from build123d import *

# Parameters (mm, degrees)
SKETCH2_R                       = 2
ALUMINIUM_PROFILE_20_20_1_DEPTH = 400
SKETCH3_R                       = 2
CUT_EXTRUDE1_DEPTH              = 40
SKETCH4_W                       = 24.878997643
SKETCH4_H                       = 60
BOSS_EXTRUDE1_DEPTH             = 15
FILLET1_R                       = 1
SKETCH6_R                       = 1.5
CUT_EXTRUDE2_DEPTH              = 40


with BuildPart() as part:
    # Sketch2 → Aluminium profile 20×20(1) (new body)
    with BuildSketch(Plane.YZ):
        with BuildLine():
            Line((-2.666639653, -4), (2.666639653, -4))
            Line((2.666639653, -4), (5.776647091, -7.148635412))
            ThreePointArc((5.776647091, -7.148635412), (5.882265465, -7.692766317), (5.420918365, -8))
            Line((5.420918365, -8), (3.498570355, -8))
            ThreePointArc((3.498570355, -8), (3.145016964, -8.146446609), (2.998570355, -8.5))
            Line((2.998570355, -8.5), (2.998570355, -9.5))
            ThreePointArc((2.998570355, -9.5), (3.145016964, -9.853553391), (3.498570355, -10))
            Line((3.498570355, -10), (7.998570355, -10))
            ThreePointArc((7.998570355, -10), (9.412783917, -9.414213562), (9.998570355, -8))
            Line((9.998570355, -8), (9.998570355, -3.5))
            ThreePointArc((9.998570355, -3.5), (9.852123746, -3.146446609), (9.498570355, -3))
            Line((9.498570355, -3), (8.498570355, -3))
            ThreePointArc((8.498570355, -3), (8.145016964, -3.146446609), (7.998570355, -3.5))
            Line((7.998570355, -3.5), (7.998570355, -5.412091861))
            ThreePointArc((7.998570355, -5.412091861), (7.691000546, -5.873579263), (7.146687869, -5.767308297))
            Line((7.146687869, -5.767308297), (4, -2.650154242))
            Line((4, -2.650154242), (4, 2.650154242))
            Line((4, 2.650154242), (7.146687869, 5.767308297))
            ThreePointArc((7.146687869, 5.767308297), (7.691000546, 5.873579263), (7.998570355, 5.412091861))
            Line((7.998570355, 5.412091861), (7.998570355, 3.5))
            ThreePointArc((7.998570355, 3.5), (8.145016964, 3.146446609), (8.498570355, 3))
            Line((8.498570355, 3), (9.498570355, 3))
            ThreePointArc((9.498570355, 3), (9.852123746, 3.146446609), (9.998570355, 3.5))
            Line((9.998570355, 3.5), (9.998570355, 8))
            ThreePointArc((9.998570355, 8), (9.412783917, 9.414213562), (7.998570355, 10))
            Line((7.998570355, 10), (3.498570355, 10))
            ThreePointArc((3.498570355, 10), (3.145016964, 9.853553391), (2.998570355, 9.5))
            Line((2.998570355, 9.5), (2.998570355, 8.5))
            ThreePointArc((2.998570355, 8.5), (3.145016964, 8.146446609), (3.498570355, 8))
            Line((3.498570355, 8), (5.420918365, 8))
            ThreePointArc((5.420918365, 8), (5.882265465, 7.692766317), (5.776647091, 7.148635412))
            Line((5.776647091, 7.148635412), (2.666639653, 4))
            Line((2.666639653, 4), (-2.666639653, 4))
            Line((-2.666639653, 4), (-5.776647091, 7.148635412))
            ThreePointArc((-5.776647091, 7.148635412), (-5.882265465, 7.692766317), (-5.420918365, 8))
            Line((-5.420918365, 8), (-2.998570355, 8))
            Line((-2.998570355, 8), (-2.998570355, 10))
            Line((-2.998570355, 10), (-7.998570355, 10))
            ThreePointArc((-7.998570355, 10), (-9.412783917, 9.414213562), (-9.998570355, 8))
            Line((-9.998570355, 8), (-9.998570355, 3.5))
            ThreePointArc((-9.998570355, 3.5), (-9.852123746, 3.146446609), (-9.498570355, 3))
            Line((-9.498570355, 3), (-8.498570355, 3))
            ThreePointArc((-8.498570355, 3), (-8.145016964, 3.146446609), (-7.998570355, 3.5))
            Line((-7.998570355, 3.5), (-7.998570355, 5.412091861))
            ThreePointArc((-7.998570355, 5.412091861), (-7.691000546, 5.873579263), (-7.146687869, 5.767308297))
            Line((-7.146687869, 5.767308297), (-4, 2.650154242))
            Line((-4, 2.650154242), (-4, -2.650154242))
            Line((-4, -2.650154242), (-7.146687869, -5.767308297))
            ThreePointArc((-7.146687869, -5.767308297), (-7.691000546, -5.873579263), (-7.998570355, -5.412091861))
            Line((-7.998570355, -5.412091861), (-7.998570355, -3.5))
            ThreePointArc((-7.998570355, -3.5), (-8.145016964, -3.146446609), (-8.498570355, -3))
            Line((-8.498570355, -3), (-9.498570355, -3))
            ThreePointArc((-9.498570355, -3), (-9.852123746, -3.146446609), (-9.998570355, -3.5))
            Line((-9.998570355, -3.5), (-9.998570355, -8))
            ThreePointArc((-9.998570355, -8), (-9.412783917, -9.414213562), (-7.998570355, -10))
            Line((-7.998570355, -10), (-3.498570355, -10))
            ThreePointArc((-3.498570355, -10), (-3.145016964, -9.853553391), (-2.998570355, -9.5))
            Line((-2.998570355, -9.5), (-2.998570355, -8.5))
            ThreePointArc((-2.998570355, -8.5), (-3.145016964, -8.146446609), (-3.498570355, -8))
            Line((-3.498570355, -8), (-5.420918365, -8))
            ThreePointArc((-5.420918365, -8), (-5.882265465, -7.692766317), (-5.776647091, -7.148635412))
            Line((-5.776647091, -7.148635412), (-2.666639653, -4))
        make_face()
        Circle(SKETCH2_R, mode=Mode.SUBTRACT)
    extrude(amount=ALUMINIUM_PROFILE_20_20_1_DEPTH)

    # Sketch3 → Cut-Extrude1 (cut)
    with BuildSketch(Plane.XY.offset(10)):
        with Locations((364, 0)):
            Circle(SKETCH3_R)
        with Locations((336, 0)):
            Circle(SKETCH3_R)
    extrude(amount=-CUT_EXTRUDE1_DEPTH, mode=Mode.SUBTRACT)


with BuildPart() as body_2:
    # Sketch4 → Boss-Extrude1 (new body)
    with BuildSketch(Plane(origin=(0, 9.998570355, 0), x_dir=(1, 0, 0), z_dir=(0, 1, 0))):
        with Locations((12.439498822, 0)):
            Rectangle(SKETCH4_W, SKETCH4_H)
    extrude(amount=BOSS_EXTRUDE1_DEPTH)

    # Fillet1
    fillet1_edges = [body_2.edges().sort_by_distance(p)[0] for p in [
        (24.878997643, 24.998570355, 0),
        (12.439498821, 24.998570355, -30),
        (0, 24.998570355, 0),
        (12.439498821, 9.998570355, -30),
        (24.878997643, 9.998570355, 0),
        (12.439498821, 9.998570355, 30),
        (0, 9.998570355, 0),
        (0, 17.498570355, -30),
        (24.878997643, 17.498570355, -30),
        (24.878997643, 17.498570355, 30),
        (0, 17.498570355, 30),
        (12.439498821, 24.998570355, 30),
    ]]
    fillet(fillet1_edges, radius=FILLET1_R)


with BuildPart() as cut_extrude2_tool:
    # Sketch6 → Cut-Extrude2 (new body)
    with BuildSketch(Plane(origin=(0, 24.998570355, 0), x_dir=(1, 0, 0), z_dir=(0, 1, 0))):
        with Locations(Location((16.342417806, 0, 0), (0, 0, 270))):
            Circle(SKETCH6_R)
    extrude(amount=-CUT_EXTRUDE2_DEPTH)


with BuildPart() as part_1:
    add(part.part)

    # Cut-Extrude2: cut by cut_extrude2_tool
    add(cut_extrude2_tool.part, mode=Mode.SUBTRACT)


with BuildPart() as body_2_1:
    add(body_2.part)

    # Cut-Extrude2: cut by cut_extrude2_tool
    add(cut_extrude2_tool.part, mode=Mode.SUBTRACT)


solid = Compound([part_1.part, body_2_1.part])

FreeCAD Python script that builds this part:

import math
import FreeCAD as App
import Part
import Sketcher
from FreeCAD import Vector

doc = App.newDocument("Part")
body = doc.addObject("PartDesign::Body", "Body")

sketch1 = body.newObject("Sketcher::SketchObject", "Sketch")
sketch1.AttachmentSupport = (doc.getObject("YZ_Plane"), [""])
sketch1.MapMode = "FlatFace"
sketch1.addGeometry(Part.LineSegment(Vector(-2.67, -4, 0), Vector(2.67, -4, 0)), False)
sketch1.addGeometry(Part.LineSegment(Vector(2.67, -4, 0), Vector(5.78, -7.15, 0)), False)
sketch1.addGeometry(Part.ArcOfCircle(Part.Circle(Vector(5.42, -7.5, 0), Vector(0, 0, 1), 0.5), math.radians(-90), math.radians(45)), False)
sketch1.addGeometry(Part.LineSegment(Vector(5.42, -8, 0), Vector(3.5, -8, 0)), False)
sketch1.addGeometry(Part.ArcOfCircle(Part.Circle(Vector(3.5, -8.5, 0), Vector(0, 0, 1), 0.5), math.radians(90), math.radians(180)), False)
sketch1.addGeometry(Part.LineSegment(Vector(3, -8.5, 0), Vector(3, -9.5, 0)), False)
sketch1.addGeometry(Part.ArcOfCircle(Part.Circle(Vector(3.5, -9.5, 0), Vector(0, 0, 1), 0.5), math.radians(180), math.radians(270)), False)
sketch1.addGeometry(Part.LineSegment(Vector(3.5, -10, 0), Vector(8, -10, 0)), False)
sketch1.addGeometry(Part.ArcOfCircle(Part.Circle(Vector(8, -8, 0), Vector(0, 0, 1), 2), math.radians(-90), math.radians(0)), False)
sketch1.addGeometry(Part.LineSegment(Vector(10, -8, 0), Vector(10, -3.5, 0)), False)
sketch1.addGeometry(Part.ArcOfCircle(Part.Circle(Vector(9.5, -3.5, 0), Vector(0, 0, 1), 0.5), math.radians(0), math.radians(90)), False)
sketch1.addGeometry(Part.LineSegment(Vector(9.5, -3, 0), Vector(8.5, -3, 0)), False)
sketch1.addGeometry(Part.ArcOfCircle(Part.Circle(Vector(8.5, -3.5, 0), Vector(0, 0, 1), 0.5), math.radians(90), math.radians(180)), False)
sketch1.addGeometry(Part.LineSegment(Vector(8, -3.5, 0), Vector(8, -5.41, 0)), False)
sketch1.addGeometry(Part.ArcOfCircle(Part.Circle(Vector(7.5, -5.41, 0), Vector(0, 0, 1), 0.5), math.radians(-135), math.radians(0)), False)
sketch1.addGeometry(Part.LineSegment(Vector(7.15, -5.77, 0), Vector(4, -2.65, 0)), False)
sketch1.addGeometry(Part.LineSegment(Vector(4, -2.65, 0), Vector(4, 2.65, 0)), False)
sketch1.addGeometry(Part.LineSegment(Vector(4, 2.65, 0), Vector(7.15, 5.77, 0)), False)
sketch1.addGeometry(Part.ArcOfCircle(Part.Circle(Vector(7.5, 5.41, 0), Vector(0, 0, 1), 0.5), math.radians(0), math.radians(135)), False)
sketch1.addGeometry(Part.LineSegment(Vector(8, 5.41, 0), Vector(8, 3.5, 0)), False)
sketch1.addGeometry(Part.ArcOfCircle(Part.Circle(Vector(8.5, 3.5, 0), Vector(0, 0, 1), 0.5), math.radians(180), math.radians(270)), False)
sketch1.addGeometry(Part.LineSegment(Vector(8.5, 3, 0), Vector(9.5, 3, 0)), False)
sketch1.addGeometry(Part.ArcOfCircle(Part.Circle(Vector(9.5, 3.5, 0), Vector(0, 0, 1), 0.5), math.radians(-90), math.radians(0)), False)
sketch1.addGeometry(Part.LineSegment(Vector(10, 3.5, 0), Vector(10, 8, 0)), False)
sketch1.addGeometry(Part.ArcOfCircle(Part.Circle(Vector(8, 8, 0), Vector(0, 0, 1), 2), math.radians(0), math.radians(90)), False)
sketch1.addGeometry(Part.LineSegment(Vector(8, 10, 0), Vector(3.5, 10, 0)), False)
sketch1.addGeometry(Part.ArcOfCircle(Part.Circle(Vector(3.5, 9.5, 0), Vector(0, 0, 1), 0.5), math.radians(90), math.radians(180)), False)
sketch1.addGeometry(Part.LineSegment(Vector(3, 9.5, 0), Vector(3, 8.5, 0)), False)
sketch1.addGeometry(Part.ArcOfCircle(Part.Circle(Vector(3.5, 8.5, 0), Vector(0, 0, 1), 0.5), math.radians(180), math.radians(270)), False)
sketch1.addGeometry(Part.LineSegment(Vector(3.5, 8, 0), Vector(5.42, 8, 0)), False)
sketch1.addGeometry(Part.ArcOfCircle(Part.Circle(Vector(5.42, 7.5, 0), Vector(0, 0, 1), 0.5), math.radians(-45), math.radians(90)), False)
sketch1.addGeometry(Part.LineSegment(Vector(5.78, 7.15, 0), Vector(2.67, 4, 0)), False)
sketch1.addGeometry(Part.LineSegment(Vector(2.67, 4, 0), Vector(-2.67, 4, 0)), False)
sketch1.addGeometry(Part.LineSegment(Vector(-2.67, 4, 0), Vector(-5.78, 7.15, 0)), False)
sketch1.addGeometry(Part.ArcOfCircle(Part.Circle(Vector(-5.42, 7.5, 0), Vector(0, 0, 1), 0.5), math.radians(90), math.radians(225)), False)
sketch1.addGeometry(Part.LineSegment(Vector(-5.42, 8, 0), Vector(-3, 8, 0)), False)
sketch1.addGeometry(Part.LineSegment(Vector(-3, 8, 0), Vector(-3, 10, 0)), False)
sketch1.addGeometry(Part.LineSegment(Vector(-3, 10, 0), Vector(-8, 10, 0)), False)
sketch1.addGeometry(Part.ArcOfCircle(Part.Circle(Vector(-8, 8, 0), Vector(0, 0, 1), 2), math.radians(90), math.radians(180)), False)
sketch1.addGeometry(Part.LineSegment(Vector(-10, 8, 0), Vector(-10, 3.5, 0)), False)
sketch1.addGeometry(Part.ArcOfCircle(Part.Circle(Vector(-9.5, 3.5, 0), Vector(0, 0, 1), 0.5), math.radians(180), math.radians(270)), False)
sketch1.addGeometry(Part.LineSegment(Vector(-9.5, 3, 0), Vector(-8.5, 3, 0)), False)
sketch1.addGeometry(Part.ArcOfCircle(Part.Circle(Vector(-8.5, 3.5, 0), Vector(0, 0, 1), 0.5), math.radians(-90), math.radians(0)), False)
sketch1.addGeometry(Part.LineSegment(Vector(-8, 3.5, 0), Vector(-8, 5.41, 0)), False)
sketch1.addGeometry(Part.ArcOfCircle(Part.Circle(Vector(-7.5, 5.41, 0), Vector(0, 0, 1), 0.5), math.radians(45), math.radians(180)), False)
sketch1.addGeometry(Part.LineSegment(Vector(-7.15, 5.77, 0), Vector(-4, 2.65, 0)), False)
sketch1.addGeometry(Part.LineSegment(Vector(-4, 2.65, 0), Vector(-4, -2.65, 0)), False)
sketch1.addGeometry(Part.LineSegment(Vector(-4, -2.65, 0), Vector(-7.15, -5.77, 0)), False)
sketch1.addGeometry(Part.ArcOfCircle(Part.Circle(Vector(-7.5, -5.41, 0), Vector(0, 0, 1), 0.5), math.radians(180), math.radians(315)), False)
sketch1.addGeometry(Part.LineSegment(Vector(-8, -5.41, 0), Vector(-8, -3.5, 0)), False)
sketch1.addGeometry(Part.ArcOfCircle(Part.Circle(Vector(-8.5, -3.5, 0), Vector(0, 0, 1), 0.5), math.radians(0), math.radians(90)), False)
sketch1.addGeometry(Part.LineSegment(Vector(-8.5, -3, 0), Vector(-9.5, -3, 0)), False)
sketch1.addGeometry(Part.ArcOfCircle(Part.Circle(Vector(-9.5, -3.5, 0), Vector(0, 0, 1), 0.5), math.radians(90), math.radians(180)), False)
sketch1.addGeometry(Part.LineSegment(Vector(-10, -3.5, 0), Vector(-10, -8, 0)), False)
sketch1.addGeometry(Part.ArcOfCircle(Part.Circle(Vector(-8, -8, 0), Vector(0, 0, 1), 2), math.radians(-180), math.radians(-90)), False)
sketch1.addGeometry(Part.LineSegment(Vector(-8, -10, 0), Vector(-3.5, -10, 0)), False)
sketch1.addGeometry(Part.ArcOfCircle(Part.Circle(Vector(-3.5, -9.5, 0), Vector(0, 0, 1), 0.5), math.radians(-90), math.radians(0)), False)
sketch1.addGeometry(Part.LineSegment(Vector(-3, -9.5, 0), Vector(-3, -8.5, 0)), False)
sketch1.addGeometry(Part.ArcOfCircle(Part.Circle(Vector(-3.5, -8.5, 0), Vector(0, 0, 1), 0.5), math.radians(0), math.radians(90)), False)
sketch1.addGeometry(Part.LineSegment(Vector(-3.5, -8, 0), Vector(-5.42, -8, 0)), False)
sketch1.addGeometry(Part.ArcOfCircle(Part.Circle(Vector(-5.42, -7.5, 0), Vector(0, 0, 1), 0.5), math.radians(135), math.radians(270)), False)
sketch1.addGeometry(Part.LineSegment(Vector(-5.78, -7.15, 0), Vector(-2.67, -4, 0)), False)
sketch1.addGeometry(Part.Circle(Vector(0, 0, 0), Vector(0, 0, 1), 2), False)
sketch1.addConstraint(Sketcher.Constraint("Coincident", 0, 2, 1, 1))
sketch1.addConstraint(Sketcher.Constraint("Tangent", 1, 2, 2, 2))
sketch1.addConstraint(Sketcher.Constraint("Tangent", 2, 1, 3, 1))
sketch1.addConstraint(Sketcher.Constraint("Tangent", 3, 2, 4, 1))
sketch1.addConstraint(Sketcher.Constraint("Tangent", 4, 2, 5, 1))
sketch1.addConstraint(Sketcher.Constraint("Tangent", 5, 2, 6, 1))
sketch1.addConstraint(Sketcher.Constraint("Tangent", 6, 2, 7, 1))
sketch1.addConstraint(Sketcher.Constraint("Tangent", 7, 2, 8, 1))
sketch1.addConstraint(Sketcher.Constraint("Tangent", 8, 2, 9, 1))
sketch1.addConstraint(Sketcher.Constraint("Tangent", 9, 2, 10, 1))
sketch1.addConstraint(Sketcher.Constraint("Tangent", 10, 2, 11, 1))
sketch1.addConstraint(Sketcher.Constraint("Tangent", 11, 2, 12, 1))
sketch1.addConstraint(Sketcher.Constraint("Tangent", 12, 2, 13, 1))
sketch1.addConstraint(Sketcher.Constraint("Tangent", 13, 2, 14, 2))
sketch1.addConstraint(Sketcher.Constraint("Tangent", 14, 1, 15, 1))
sketch1.addConstraint(Sketcher.Constraint("Coincident", 15, 2, 16, 1))
sketch1.addConstraint(Sketcher.Constraint("Coincident", 16, 2, 17, 1))
sketch1.addConstraint(Sketcher.Constraint("Tangent", 17, 2, 18, 2))
sketch1.addConstraint(Sketcher.Constraint("Tangent", 18, 1, 19, 1))
sketch1.addConstraint(Sketcher.Constraint("Tangent", 19, 2, 20, 1))
sketch1.addConstraint(Sketcher.Constraint("Tangent", 20, 2, 21, 1))
sketch1.addConstraint(Sketcher.Constraint("Tangent", 21, 2, 22, 1))
sketch1.addConstraint(Sketcher.Constraint("Tangent", 22, 2, 23, 1))
sketch1.addConstraint(Sketcher.Constraint("Tangent", 23, 2, 24, 1))
sketch1.addConstraint(Sketcher.Constraint("Tangent", 24, 2, 25, 1))
sketch1.addConstraint(Sketcher.Constraint("Tangent", 25, 2, 26, 1))
sketch1.addConstraint(Sketcher.Constraint("Tangent", 26, 2, 27, 1))
sketch1.addConstraint(Sketcher.Constraint("Tangent", 27, 2, 28, 1))
sketch1.addConstraint(Sketcher.Constraint("Tangent", 28, 2, 29, 1))
sketch1.addConstraint(Sketcher.Constraint("Tangent", 29, 2, 30, 2))
sketch1.addConstraint(Sketcher.Constraint("Tangent", 30, 1, 31, 1))
sketch1.addConstraint(Sketcher.Constraint("Coincident", 31, 2, 32, 1))
sketch1.addConstraint(Sketcher.Constraint("Coincident", 32, 2, 33, 1))
sketch1.addConstraint(Sketcher.Constraint("Tangent", 33, 2, 34, 2))
sketch1.addConstraint(Sketcher.Constraint("Tangent", 34, 1, 35, 1))
sketch1.addConstraint(Sketcher.Constraint("Coincident", 35, 2, 36, 1))
sketch1.addConstraint(Sketcher.Constraint("Coincident", 36, 2, 37, 1))
sketch1.addConstraint(Sketcher.Constraint("Tangent", 37, 2, 38, 1))
sketch1.addConstraint(Sketcher.Constraint("Tangent", 38, 2, 39, 1))
sketch1.addConstraint(Sketcher.Constraint("Tangent", 39, 2, 40, 1))
sketch1.addConstraint(Sketcher.Constraint("Tangent", 40, 2, 41, 1))
sketch1.addConstraint(Sketcher.Constraint("Tangent", 41, 2, 42, 1))
sketch1.addConstraint(Sketcher.Constraint("Tangent", 42, 2, 43, 1))
sketch1.addConstraint(Sketcher.Constraint("Tangent", 43, 2, 44, 2))
sketch1.addConstraint(Sketcher.Constraint("Tangent", 44, 1, 45, 1))
sketch1.addConstraint(Sketcher.Constraint("Coincident", 45, 2, 46, 1))
sketch1.addConstraint(Sketcher.Constraint("Coincident", 46, 2, 47, 1))
sketch1.addConstraint(Sketcher.Constraint("Tangent", 47, 2, 48, 2))
sketch1.addConstraint(Sketcher.Constraint("Tangent", 48, 1, 49, 1))
sketch1.addConstraint(Sketcher.Constraint("Tangent", 49, 2, 50, 1))
sketch1.addConstraint(Sketcher.Constraint("Tangent", 50, 2, 51, 1))
sketch1.addConstraint(Sketcher.Constraint("Tangent", 51, 2, 52, 1))
sketch1.addConstraint(Sketcher.Constraint("Tangent", 52, 2, 53, 1))
sketch1.addConstraint(Sketcher.Constraint("Tangent", 53, 2, 54, 1))
sketch1.addConstraint(Sketcher.Constraint("Tangent", 54, 2, 55, 1))
sketch1.addConstraint(Sketcher.Constraint("Tangent", 55, 2, 56, 1))
sketch1.addConstraint(Sketcher.Constraint("Tangent", 56, 2, 57, 1))
sketch1.addConstraint(Sketcher.Constraint("Tangent", 57, 2, 58, 1))
sketch1.addConstraint(Sketcher.Constraint("Tangent", 58, 2, 59, 1))
sketch1.addConstraint(Sketcher.Constraint("Tangent", 59, 2, 60, 2))
sketch1.addConstraint(Sketcher.Constraint("Tangent", 60, 1, 61, 1))
sketch1.addConstraint(Sketcher.Constraint("Coincident", 61, 2, 0, 1))
sketch1.addConstraint(Sketcher.Constraint("Horizontal", 0))
sketch1.addConstraint(Sketcher.Constraint("Horizontal", 3))
sketch1.addConstraint(Sketcher.Constraint("Vertical", 5))
sketch1.addConstraint(Sketcher.Constraint("Horizontal", 7))
sketch1.addConstraint(Sketcher.Constraint("Vertical", 9))
sketch1.addConstraint(Sketcher.Constraint("Horizontal", 11))
sketch1.addConstraint(Sketcher.Constraint("Vertical", 13))
sketch1.addConstraint(Sketcher.Constraint("Vertical", 16))
sketch1.addConstraint(Sketcher.Constraint("Vertical", 19))
sketch1.addConstraint(Sketcher.Constraint("Horizontal", 21))
sketch1.addConstraint(Sketcher.Constraint("Vertical", 23))
sketch1.addConstraint(Sketcher.Constraint("Horizontal", 25))
sketch1.addConstraint(Sketcher.Constraint("Vertical", 27))
sketch1.addConstraint(Sketcher.Constraint("Horizontal", 29))
sketch1.addConstraint(Sketcher.Constraint("Horizontal", 32))
sketch1.addConstraint(Sketcher.Constraint("Horizontal", 35))
sketch1.addConstraint(Sketcher.Constraint("Vertical", 36))
sketch1.addConstraint(Sketcher.Constraint("Horizontal", 37))
sketch1.addConstraint(Sketcher.Constraint("Vertical", 39))
sketch1.addConstraint(Sketcher.Constraint("Horizontal", 41))
sketch1.addConstraint(Sketcher.Constraint("Vertical", 43))
sketch1.addConstraint(Sketcher.Constraint("Vertical", 46))
sketch1.addConstraint(Sketcher.Constraint("Vertical", 49))
sketch1.addConstraint(Sketcher.Constraint("Horizontal", 51))
sketch1.addConstraint(Sketcher.Constraint("Vertical", 53))
sketch1.addConstraint(Sketcher.Constraint("Horizontal", 55))
sketch1.addConstraint(Sketcher.Constraint("Vertical", 57))
sketch1.addConstraint(Sketcher.Constraint("Horizontal", 59))
sketch1.addConstraint(Sketcher.Constraint("Coincident", 62, 3, -1, 1))
sketch1.addConstraint(Sketcher.Constraint("Equal", 2, 4))
sketch1.addConstraint(Sketcher.Constraint("Equal", 4, 6))
sketch1.addConstraint(Sketcher.Constraint("Equal", 6, 10))
sketch1.addConstraint(Sketcher.Constraint("Equal", 10, 12))
sketch1.addConstraint(Sketcher.Constraint("Equal", 12, 14))
sketch1.addConstraint(Sketcher.Constraint("Equal", 14, 18))
sketch1.addConstraint(Sketcher.Constraint("Equal", 18, 20))
sketch1.addConstraint(Sketcher.Constraint("Equal", 20, 22))
sketch1.addConstraint(Sketcher.Constraint("Equal", 8, 24))
sketch1.addConstraint(Sketcher.Constraint("Equal", 22, 26))
sketch1.addConstraint(Sketcher.Constraint("Equal", 26, 28))
sketch1.addConstraint(Sketcher.Constraint("Equal", 28, 30))
sketch1.addConstraint(Sketcher.Constraint("Equal", 30, 34))
sketch1.addConstraint(Sketcher.Constraint("Equal", 24, 38))
sketch1.addConstraint(Sketcher.Constraint("Equal", 34, 40))
sketch1.addConstraint(Sketcher.Constraint("Equal", 40, 42))
sketch1.addConstraint(Sketcher.Constraint("Equal", 42, 44))
sketch1.addConstraint(Sketcher.Constraint("Equal", 44, 48))
sketch1.addConstraint(Sketcher.Constraint("Equal", 48, 50))
sketch1.addConstraint(Sketcher.Constraint("Equal", 50, 52))
sketch1.addConstraint(Sketcher.Constraint("Equal", 38, 54))
sketch1.addConstraint(Sketcher.Constraint("Equal", 52, 56))
sketch1.addConstraint(Sketcher.Constraint("Equal", 56, 58))
sketch1.addConstraint(Sketcher.Constraint("Equal", 58, 60))
sketch1.addConstraint(Sketcher.Constraint("Equal", 54, 62))
sketch1.addConstraint(Sketcher.Constraint("Symmetric", 2, 3, 34, 3, -1, 1))
sketch1.addConstraint(Sketcher.Constraint("Symmetric", 8, 3, 38, 3, -1, 1))
sketch1.addConstraint(Sketcher.Constraint("Symmetric", 12, 3, 42, 3, -1, 1))
sketch1.addConstraint(Sketcher.Constraint("Symmetric", 18, 3, 48, 3, -1, 1))
sketch1.addConstraint(Sketcher.Constraint("Symmetric", 22, 3, 52, 3, -1, 1))
sketch1.addConstraint(Sketcher.Constraint("Symmetric", 26, 3, 56, 3, -1, 1))
sketch1.addConstraint(Sketcher.Constraint("Symmetric", 30, 3, 60, 3, -1, 1))
sketch1.addConstraint(Sketcher.Constraint("Symmetric", 0, 2, 32, 2, -1, 1))
sketch1.addConstraint(Sketcher.Constraint("Symmetric", 14, 1, 44, 1, -1, 1))
sketch1.addConstraint(Sketcher.Constraint("Symmetric", 16, 2, 46, 2, -1, 1))
sketch1.addConstraint(Sketcher.Constraint("Symmetric", 30, 3, 34, 3, -2))
sketch1.addConstraint(Sketcher.Constraint("Symmetric", 24, 3, 38, 3, -2))
sketch1.addConstraint(Sketcher.Constraint("Symmetric", 20, 3, 42, 3, -2))
sketch1.addConstraint(Sketcher.Constraint("Symmetric", 17, 2, 44, 1, -2))
sketch1.addConstraint(Sketcher.Constraint("Parallel", 31, 61))
sketch1.addConstraint(Sketcher.Constraint("Horizontal", 54, 3, 2, 1))
sketch1.addConstraint(Sketcher.Constraint("Horizontal", 30, 1, 33, 2))
sketch1.addConstraint(Sketcher.Constraint("Vertical", 6, 3, 26, 3))
sketch1.addConstraint(Sketcher.Constraint("Vertical", 7, 2, 12, 2))
sketch1.addConstraint(Sketcher.Constraint("Vertical", 36, 2, 56, 2))
sketch1.addConstraint(Sketcher.Constraint("Equal", 55, 9))
sketch1.addConstraint(Sketcher.Constraint("Diameter", 62, 4.0))
sketch1.addConstraint(Sketcher.Constraint("Radius", 2, 0.5))
sketch1.addConstraint(Sketcher.Constraint("DistanceX", 37, 2, 37, 1, 5.0))
sketch1.addConstraint(Sketcher.Constraint("DistanceY", 8, 3, -1, 1, 8.0))
sketch1.addConstraint(Sketcher.Constraint("DistanceY", 0, 2, -1, 1, 4.0))
sketch1.addConstraint(Sketcher.Constraint("DistanceX", -1, 1, 15, 2, 4.0))
sketch1.addConstraint(Sketcher.Constraint("DistanceX", 0, 1, 0, 2, 5.333279))
sketch1.addConstraint(Sketcher.Constraint("DistanceX", 3, 2, 3, 1, 1.922348))
sketch1.addConstraint(Sketcher.Constraint("DistanceY", 13, 2, 13, 1, 1.912092))
sketch1.addConstraint(Sketcher.Constraint("DistanceY", 16, 1, 16, 2, 5.300308))
sketch1.addConstraint(Sketcher.Constraint("DistanceX", -1, 1, 2, 3, 5.420918))
pad1 = body.newObject("PartDesign::Pad", "Pad")
pad1.Profile = sketch1
pad1.Length = 400

sketch2 = body.newObject("Sketcher::SketchObject", "Sketch001")
sketch2.AttachmentSupport = (doc.getObject("XY_Plane"), [""])
sketch2.MapMode = "FlatFace"
sketch2.AttachmentOffset = App.Placement(Vector(0, 0, 10), App.Rotation())
sketch2.addGeometry(Part.Circle(Vector(364, 0, 0), Vector(0, 0, 1), 2), False)
sketch2.addGeometry(Part.Circle(Vector(336, 0, 0), Vector(0, 0, 1), 2), False)
sketch2.addConstraint(Sketcher.Constraint("Equal", 0, 1))
sketch2.addConstraint(Sketcher.Constraint("PointOnObject", 0, 3, -1))
sketch2.addConstraint(Sketcher.Constraint("PointOnObject", 1, 3, -1))
sketch2.addConstraint(Sketcher.Constraint("Diameter", 0, 4.0))
sketch2.addConstraint(Sketcher.Constraint("DistanceX", -1, 1, 0, 3, 364.0))
sketch2.addConstraint(Sketcher.Constraint("DistanceX", -1, 1, 1, 3, 336.0))
pocket1 = body.newObject("PartDesign::Pocket", "Pocket")
pocket1.Profile = sketch2
pocket1.Length = 40
body2 = doc.addObject("PartDesign::Body", "Body001")

sketch3 = body2.newObject("Sketcher::SketchObject", "Sketch002")
sketch3.AttachmentSupport = (doc.getObject("XZ_Plane001"), [""])
sketch3.MapMode = "FlatFace"
sketch3.AttachmentOffset = App.Placement(Vector(0, 0, -9.99857), App.Rotation())
sketch3.addGeometry(Part.LineSegment(Vector(0, -30, 0), Vector(0, 30, 0)), False)
sketch3.addGeometry(Part.LineSegment(Vector(0, 30, 0), Vector(25, 30, 0)), False)
sketch3.addGeometry(Part.LineSegment(Vector(25, 30, 0), Vector(25, -30, 0)), False)
sketch3.addGeometry(Part.LineSegment(Vector(25, -30, 0), Vector(0, -30, 0)), False)
sketch3.addConstraint(Sketcher.Constraint("Coincident", 0, 2, 1, 1))
sketch3.addConstraint(Sketcher.Constraint("Coincident", 1, 2, 2, 1))
sketch3.addConstraint(Sketcher.Constraint("Coincident", 2, 2, 3, 1))
sketch3.addConstraint(Sketcher.Constraint("Coincident", 3, 2, 0, 1))
sketch3.addConstraint(Sketcher.Constraint("Vertical", 0))
sketch3.addConstraint(Sketcher.Constraint("Horizontal", 1))
sketch3.addConstraint(Sketcher.Constraint("Vertical", 2))
sketch3.addConstraint(Sketcher.Constraint("Horizontal", 3))
sketch3.addConstraint(Sketcher.Constraint("Symmetric", 0, 2, 3, 2, -1, 1))
sketch3.addConstraint(Sketcher.Constraint("DistanceY", 0, 1, 0, 2, 60.0))
sketch3.addConstraint(Sketcher.Constraint("DistanceX", 1, 1, 1, 2, 24.878998))
pad2 = body2.newObject("PartDesign::Pad", "Pad001")
pad2.Profile = sketch3
pad2.Length = 15
pad2.Reversed = True
doc.recompute()

fillet = body2.newObject("PartDesign::Fillet", "Fillet")
fillet.Base = (pad2, ["Edge1"])
fillet.UseAllEdges = True
fillet.Radius = 1
body3 = doc.addObject("PartDesign::Body", "Body002")

sketch4 = body3.newObject("Sketcher::SketchObject", "Sketch003")
sketch4.AttachmentSupport = (doc.getObject("XZ_Plane002"), [""])
sketch4.MapMode = "FlatFace"
sketch4.AttachmentOffset = App.Placement(Vector(0, 0, -24.99857), App.Rotation())
sketch4.addGeometry(Part.Circle(Vector(16.3, 0, 0), Vector(0, 0, 1), 1.5), False)
sketch4.addConstraint(Sketcher.Constraint("PointOnObject", 0, 3, -1))
sketch4.addConstraint(Sketcher.Constraint("Diameter", 0, 3.0))
sketch4.addConstraint(Sketcher.Constraint("DistanceX", -1, 1, 0, 3, 16.342418))
pad3 = body3.newObject("PartDesign::Pad", "Pad002")
pad3.Profile = sketch4
pad3.Length = 40
doc.recompute()

body4 = doc.addObject("PartDesign::Body", "Body003")
body4.BaseFeature = body3
boolean = body.newObject("PartDesign::Boolean", "Boolean")
boolean.Type = "Cut"
boolean.addObjects([body4])
doc.recompute()

boolean2 = body2.newObject("PartDesign::Boolean", "Boolean001")
boolean2.Type = "Cut"
boolean2.addObjects([body3])

doc.recompute()
